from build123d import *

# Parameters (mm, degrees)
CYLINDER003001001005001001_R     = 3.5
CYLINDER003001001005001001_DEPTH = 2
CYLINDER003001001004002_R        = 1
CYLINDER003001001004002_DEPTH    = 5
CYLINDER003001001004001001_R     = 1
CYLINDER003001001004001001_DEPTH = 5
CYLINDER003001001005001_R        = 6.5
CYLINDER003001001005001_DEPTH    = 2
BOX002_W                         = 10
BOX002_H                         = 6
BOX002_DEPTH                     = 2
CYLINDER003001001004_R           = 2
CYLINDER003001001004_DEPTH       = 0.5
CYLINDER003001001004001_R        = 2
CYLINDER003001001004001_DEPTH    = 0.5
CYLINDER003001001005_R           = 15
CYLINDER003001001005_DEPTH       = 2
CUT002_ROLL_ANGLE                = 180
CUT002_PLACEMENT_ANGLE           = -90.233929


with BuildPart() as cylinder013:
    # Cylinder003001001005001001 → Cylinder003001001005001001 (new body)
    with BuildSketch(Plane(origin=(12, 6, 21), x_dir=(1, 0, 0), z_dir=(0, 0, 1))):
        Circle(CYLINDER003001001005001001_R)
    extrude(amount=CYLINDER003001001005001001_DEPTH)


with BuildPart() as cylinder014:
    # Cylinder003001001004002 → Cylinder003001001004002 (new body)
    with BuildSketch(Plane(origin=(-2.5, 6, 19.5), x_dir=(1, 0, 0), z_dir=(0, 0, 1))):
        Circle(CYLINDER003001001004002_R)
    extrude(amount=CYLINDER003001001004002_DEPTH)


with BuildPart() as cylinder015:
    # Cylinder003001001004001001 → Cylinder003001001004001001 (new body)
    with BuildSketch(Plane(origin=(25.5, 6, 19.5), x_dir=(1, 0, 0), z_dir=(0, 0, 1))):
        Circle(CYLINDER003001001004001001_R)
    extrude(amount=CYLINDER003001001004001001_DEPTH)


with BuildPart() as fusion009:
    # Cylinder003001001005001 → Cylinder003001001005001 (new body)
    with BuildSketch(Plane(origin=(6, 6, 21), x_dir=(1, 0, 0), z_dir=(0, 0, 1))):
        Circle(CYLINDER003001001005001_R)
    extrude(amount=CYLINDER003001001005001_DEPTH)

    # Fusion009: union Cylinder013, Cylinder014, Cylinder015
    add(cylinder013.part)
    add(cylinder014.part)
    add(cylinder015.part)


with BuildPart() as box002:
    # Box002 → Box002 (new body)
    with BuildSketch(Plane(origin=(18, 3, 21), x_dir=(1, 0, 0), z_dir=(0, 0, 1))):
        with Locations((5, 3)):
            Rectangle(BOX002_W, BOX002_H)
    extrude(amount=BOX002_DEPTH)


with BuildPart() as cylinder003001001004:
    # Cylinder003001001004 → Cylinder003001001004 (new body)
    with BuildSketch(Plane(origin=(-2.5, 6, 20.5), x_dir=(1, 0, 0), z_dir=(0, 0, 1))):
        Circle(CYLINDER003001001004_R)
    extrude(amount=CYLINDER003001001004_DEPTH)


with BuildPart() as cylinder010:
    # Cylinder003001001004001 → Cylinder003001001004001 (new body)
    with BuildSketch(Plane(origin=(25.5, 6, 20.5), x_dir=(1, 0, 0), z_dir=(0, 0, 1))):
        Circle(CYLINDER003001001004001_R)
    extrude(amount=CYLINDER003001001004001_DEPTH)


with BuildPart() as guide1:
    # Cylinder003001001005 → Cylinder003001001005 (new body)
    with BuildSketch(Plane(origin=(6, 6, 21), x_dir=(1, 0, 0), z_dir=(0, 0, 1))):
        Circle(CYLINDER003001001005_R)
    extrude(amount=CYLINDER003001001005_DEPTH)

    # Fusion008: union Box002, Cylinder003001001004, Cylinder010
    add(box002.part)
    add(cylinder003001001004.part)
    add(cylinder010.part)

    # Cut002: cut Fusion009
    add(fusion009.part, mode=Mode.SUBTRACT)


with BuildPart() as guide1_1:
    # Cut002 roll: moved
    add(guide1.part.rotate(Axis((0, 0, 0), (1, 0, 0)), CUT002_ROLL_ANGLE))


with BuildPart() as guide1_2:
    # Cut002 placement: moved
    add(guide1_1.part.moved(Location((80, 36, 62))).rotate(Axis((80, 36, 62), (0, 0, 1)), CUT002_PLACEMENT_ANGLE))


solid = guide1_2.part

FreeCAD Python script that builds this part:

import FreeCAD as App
import Part
import Sketcher

V = App.Vector
Q = App.Units.Quantity


def add_polygon(sketch, points):
    """Adds a closed chain of lines whose ends are joined by coincident constraints."""
    first, n = sketch.GeometryCount, len(points)
    for a, b in zip(points, points[1:] + points[:1]):
        sketch.addGeometry(Part.LineSegment(App.Vector(*a, 0), App.Vector(*b, 0)), False)
    for i in range(n):
        sketch.addConstraint(Sketcher.Constraint("Coincident", first + i, 2, first + (i + 1) % n, 1))

doc = App.newDocument("Part")
params = doc.addObject("Spreadsheet::Sheet", "Params")
for row, (alias, value) in enumerate([
    ("sketch1_diameter", "7 mm"),
    ("pad1_length", "2 mm"),
    ("sketch2_diameter", "2 mm"),
    ("pad2_length", "5 mm"),
    ("sketch3_diameter", "2 mm"),
    ("pad3_length", "5 mm"),
    ("sketch4_diameter", "13 mm"),
    ("pad4_length", "2 mm"),
    ("sketch5_width", "10 mm"),
    ("sketch5_height", "6 mm"),
    ("pad5_length", "2 mm"),
    ("sketch6_diameter", "4 mm"),
    ("pad6_length", "0.5 mm"),
    ("sketch7_diameter", "4 mm"),
    ("pad7_length", "0.5 mm"),
    ("sketch8_diameter", "30 mm"),
    ("pad8_length", "2 mm"),
], start=1):
    params.set(f"A{row}", alias)
    params.set(f"B{row}", "=" + value)
    params.setAlias(f"B{row}", alias)

body = doc.addObject("PartDesign::Body", "Body")

# Sketch on XY plane
sketch1 = body.newObject("Sketcher::SketchObject", "Sketch")
sketch1.AttachmentSupport = (doc.getObject("XY_Plane"), [""])
sketch1.MapMode = "FlatFace"
sketch1.AttachmentOffset = App.Placement(V(0, 0, 21), App.Rotation())
sketch1.addGeometry(Part.Circle(V(12, 6, 0), V(0, 0, 1), 3.5), False)
sketch1.addConstraint([
    Sketcher.Constraint("Diameter", 0, Q("7 mm")),
    Sketcher.Constraint("DistanceX", -1, 1, 0, 3, Q("12 mm")),
    Sketcher.Constraint("DistanceY", -1, 1, 0, 3, Q("6 mm")),
])
sketch1.setExpression("Constraints[0]", "Params.sketch1_diameter")
pad1 = body.newObject("PartDesign::Pad", "Pad")
pad1.Profile = sketch1
pad1.setExpression("Length", "Params.pad1_length")
body2 = doc.addObject("PartDesign::Body", "Body001")

# Sketch on XY plane
sketch2 = body2.newObject("Sketcher::SketchObject", "Sketch001")
sketch2.AttachmentSupport = (doc.getObject("XY_Plane001"), [""])
sketch2.MapMode = "FlatFace"
sketch2.AttachmentOffset = App.Placement(V(0, 0, 19.5), App.Rotation())
sketch2.addGeometry(Part.Circle(V(-2.5, 6, 0), V(0, 0, 1), 1), False)
sketch2.addConstraint([
    Sketcher.Constraint("Diameter", 0, Q("2 mm")),
    Sketcher.Constraint("DistanceY", -1, 1, 0, 3, Q("6 mm")),
    Sketcher.Constraint("DistanceX", 0, 3, -1, 1, Q("2.5 mm")),
])
sketch2.setExpression("Constraints[0]", "Params.sketch2_diameter")
pad2 = body2.newObject("PartDesign::Pad", "Pad001")
pad2.Profile = sketch2
pad2.setExpression("Length", "Params.pad2_length")
body3 = doc.addObject("PartDesign::Body", "Body002")

# Sketch on XY plane
sketch3 = body3.newObject("Sketcher::SketchObject", "Sketch002")
sketch3.AttachmentSupport = (doc.getObject("XY_Plane002"), [""])
sketch3.MapMode = "FlatFace"
sketch3.AttachmentOffset = App.Placement(V(0, 0, 19.5), App.Rotation())
sketch3.addGeometry(Part.Circle(V(25.5, 6, 0), V(0, 0, 1), 1), False)
sketch3.addConstraint([
    Sketcher.Constraint("Diameter", 0, Q("2 mm")),
    Sketcher.Constraint("DistanceY", -1, 1, 0, 3, Q("6 mm")),
    Sketcher.Constraint("DistanceX", -1, 1, 0, 3, Q("25.5 mm")),
])
sketch3.setExpression("Constraints[0]", "Params.sketch3_diameter")
pad3 = body3.newObject("PartDesign::Pad", "Pad002")
pad3.Profile = sketch3
pad3.setExpression("Length", "Params.pad3_length")
body4 = doc.addObject("PartDesign::Body", "Body003")
body4.AllowCompound = True

# Sketch on XY plane
sketch4 = body4.newObject("Sketcher::SketchObject", "Sketch003")
sketch4.AttachmentSupport = (doc.getObject("XY_Plane003"), [""])
sketch4.MapMode = "FlatFace"
sketch4.AttachmentOffset = App.Placement(V(0, 0, 21), App.Rotation())
sketch4.addGeometry(Part.Circle(V(6, 6, 0), V(0, 0, 1), 6), False)
sketch4.addConstraint([
    Sketcher.Constraint("Diameter", 0, Q("13 mm")),
    Sketcher.Constraint("DistanceX", -1, 1, 0, 3, Q("6 mm")),
    Sketcher.Constraint("DistanceY", -1, 1, 0, 3, Q("6 mm")),
])
sketch4.setExpression("Constraints[0]", "Params.sketch4_diameter")
pad4 = body4.newObject("PartDesign::Pad", "Pad003")
pad4.Profile = sketch4
pad4.setExpression("Length", "Params.pad4_length")
doc.recompute()

boolean = body4.newObject("PartDesign::Boolean", "Boolean")
boolean.Type = "Fuse"
boolean.addObjects([body])
doc.recompute()

boolean2 = body4.newObject("PartDesign::Boolean", "Boolean001")
boolean2.Type = "Fuse"
boolean2.addObjects([body2])
doc.recompute()

boolean3 = body4.newObject("PartDesign::Boolean", "Boolean002")
boolean3.Type = "Fuse"
boolean3.addObjects([body3])
body5 = doc.addObject("PartDesign::Body", "Body004")

# Sketch on XY plane
sketch5 = body5.newObject("Sketcher::SketchObject", "Sketch004")
sketch5.AttachmentSupport = (doc.getObject("XY_Plane004"), [""])
sketch5.MapMode = "FlatFace"
sketch5.AttachmentOffset = App.Placement(V(0, 0, 21), App.Rotation())
add_polygon(sketch5, [(18, 9), (18, 3), (28, 3), (28, 9)])  # lines 0-3
sketch5.addConstraint([
    Sketcher.Constraint("Vertical", 0),
    Sketcher.Constraint("Horizontal", 1),
    Sketcher.Constraint("Vertical", 2),
    Sketcher.Constraint("Horizontal", 3),
    Sketcher.Constraint("DistanceX", 1, 1, 1, 2, Q("10 mm")),
    Sketcher.Constraint("DistanceY", 0, 2, 0, 1, Q("6 mm")),
    Sketcher.Constraint("DistanceX", -1, 1, 0, 2, Q("18 mm")),
    Sketcher.Constraint("DistanceY", -1, 1, 0, 2, Q("3 mm")),
])
sketch5.setExpression("Constraints[8]", "Params.sketch5_width")
sketch5.setExpression("Constraints[9]", "Params.sketch5_height")
pad5 = body5.newObject("PartDesign::Pad", "Pad004")
pad5.Profile = sketch5
pad5.setExpression("Length", "Params.pad5_length")
body6 = doc.addObject("PartDesign::Body", "Body005")

# Sketch on XY plane
sketch6 = body6.newObject("Sketcher::SketchObject", "Sketch005")
sketch6.AttachmentSupport = (doc.getObject("XY_Plane005"), [""])
sketch6.MapMode = "FlatFace"
sketch6.AttachmentOffset = App.Placement(V(0, 0, 20.5), App.Rotation())
sketch6.addGeometry(Part.Circle(V(-2.5, 6, 0), V(0, 0, 1), 2), False)
sketch6.addConstraint([
    Sketcher.Constraint("Diameter", 0, Q("4 mm")),
    Sketcher.Constraint("DistanceY", -1, 1, 0, 3, Q("6 mm")),
    Sketcher.Constraint("DistanceX", 0, 3, -1, 1, Q("2.5 mm")),
])
sketch6.setExpression("Constraints[0]", "Params.sketch6_diameter")
pad6 = body6.newObject("PartDesign::Pad", "Pad005")
pad6.Profile = sketch6
pad6.setExpression("Length", "Params.pad6_length")
body7 = doc.addObject("PartDesign::Body", "Body006")

# Sketch on XY plane
sketch7 = body7.newObject("Sketcher::SketchObject", "Sketch006")
sketch7.AttachmentSupport = (doc.getObject("XY_Plane006"), [""])
sketch7.MapMode = "FlatFace"
sketch7.AttachmentOffset = App.Placement(V(0, 0, 20.5), App.Rotation())
sketch7.addGeometry(Part.Circle(V(25.5, 6, 0), V(0, 0, 1), 2), False)
sketch7.addConstraint([
    Sketcher.Constraint("Diameter", 0, Q("4 mm")),
    Sketcher.Constraint("DistanceY", -1, 1, 0, 3, Q("6 mm")),
    Sketcher.Constraint("DistanceX", -1, 1, 0, 3, Q("25.5 mm")),
])
sketch7.setExpression("Constraints[0]", "Params.sketch7_diameter")
pad7 = body7.newObject("PartDesign::Pad", "Pad006")
pad7.Profile = sketch7
pad7.setExpression("Length", "Params.pad7_length")
body8 = doc.addObject("PartDesign::Body", "Body007")

# Sketch on XY plane
sketch8 = body8.newObject("Sketcher::SketchObject", "Sketch007")
sketch8.AttachmentSupport = (doc.getObject("XY_Plane007"), [""])
sketch8.MapMode = "FlatFace"
sketch8.AttachmentOffset = App.Placement(V(0, 0, 21), App.Rotation())
sketch8.addGeometry(Part.Circle(V(6, 6, 0), V(0, 0, 1), 15), False)
sketch8.addConstraint([
    Sketcher.Constraint("Diameter", 0, Q("30 mm")),
    Sketcher.Constraint("DistanceX", -1, 1, 0, 3, Q("6 mm")),
    Sketcher.Constraint("DistanceY", -1, 1, 0, 3, Q("6 mm")),
])
sketch8.setExpression("Constraints[0]", "Params.sketch8_diameter")
pad8 = body8.newObject("PartDesign::Pad", "Pad007")
pad8.Profile = sketch8
pad8.setExpression("Length", "Params.pad8_length")
doc.recompute()

boolean4 = body8.newObject("PartDesign::Boolean", "Boolean003")
boolean4.Type = "Fuse"
boolean4.addObjects([body5])
doc.recompute()

boolean5 = body8.newObject("PartDesign::Boolean", "Boolean004")
boolean5.Type = "Fuse"
boolean5.addObjects([body6])
doc.recompute()

boolean6 = body8.newObject("PartDesign::Boolean", "Boolean005")
boolean6.Type = "Fuse"
boolean6.addObjects([body7])
doc.recompute()

boolean7 = body8.newObject("PartDesign::Boolean", "Boolean006")
boolean7.Type = "Cut"
boolean7.addObjects([body4])
body9 = doc.addObject("PartDesign::Body", "Body008")
doc.recompute()

body8.Placement = App.Placement(V(0, 0, 0), App.Rotation(V(1, 0, 0), 180))
boolean8 = body9.newObject("PartDesign::Boolean", "Boolean007")
boolean8.Type = "Fuse"
boolean8.addObjects([body8])
body10 = doc.addObject("PartDesign::Body", "Body009")
doc.recompute()

body9.Placement = App.Placement(V(80, 36, 62), App.Rotation(V(0, 0, 1), 269.766071))
boolean9 = body10.newObject("PartDesign::Boolean", "Boolean008")
boolean9.Type = "Fuse"
boolean9.addObjects([body9])

doc.recompute()
